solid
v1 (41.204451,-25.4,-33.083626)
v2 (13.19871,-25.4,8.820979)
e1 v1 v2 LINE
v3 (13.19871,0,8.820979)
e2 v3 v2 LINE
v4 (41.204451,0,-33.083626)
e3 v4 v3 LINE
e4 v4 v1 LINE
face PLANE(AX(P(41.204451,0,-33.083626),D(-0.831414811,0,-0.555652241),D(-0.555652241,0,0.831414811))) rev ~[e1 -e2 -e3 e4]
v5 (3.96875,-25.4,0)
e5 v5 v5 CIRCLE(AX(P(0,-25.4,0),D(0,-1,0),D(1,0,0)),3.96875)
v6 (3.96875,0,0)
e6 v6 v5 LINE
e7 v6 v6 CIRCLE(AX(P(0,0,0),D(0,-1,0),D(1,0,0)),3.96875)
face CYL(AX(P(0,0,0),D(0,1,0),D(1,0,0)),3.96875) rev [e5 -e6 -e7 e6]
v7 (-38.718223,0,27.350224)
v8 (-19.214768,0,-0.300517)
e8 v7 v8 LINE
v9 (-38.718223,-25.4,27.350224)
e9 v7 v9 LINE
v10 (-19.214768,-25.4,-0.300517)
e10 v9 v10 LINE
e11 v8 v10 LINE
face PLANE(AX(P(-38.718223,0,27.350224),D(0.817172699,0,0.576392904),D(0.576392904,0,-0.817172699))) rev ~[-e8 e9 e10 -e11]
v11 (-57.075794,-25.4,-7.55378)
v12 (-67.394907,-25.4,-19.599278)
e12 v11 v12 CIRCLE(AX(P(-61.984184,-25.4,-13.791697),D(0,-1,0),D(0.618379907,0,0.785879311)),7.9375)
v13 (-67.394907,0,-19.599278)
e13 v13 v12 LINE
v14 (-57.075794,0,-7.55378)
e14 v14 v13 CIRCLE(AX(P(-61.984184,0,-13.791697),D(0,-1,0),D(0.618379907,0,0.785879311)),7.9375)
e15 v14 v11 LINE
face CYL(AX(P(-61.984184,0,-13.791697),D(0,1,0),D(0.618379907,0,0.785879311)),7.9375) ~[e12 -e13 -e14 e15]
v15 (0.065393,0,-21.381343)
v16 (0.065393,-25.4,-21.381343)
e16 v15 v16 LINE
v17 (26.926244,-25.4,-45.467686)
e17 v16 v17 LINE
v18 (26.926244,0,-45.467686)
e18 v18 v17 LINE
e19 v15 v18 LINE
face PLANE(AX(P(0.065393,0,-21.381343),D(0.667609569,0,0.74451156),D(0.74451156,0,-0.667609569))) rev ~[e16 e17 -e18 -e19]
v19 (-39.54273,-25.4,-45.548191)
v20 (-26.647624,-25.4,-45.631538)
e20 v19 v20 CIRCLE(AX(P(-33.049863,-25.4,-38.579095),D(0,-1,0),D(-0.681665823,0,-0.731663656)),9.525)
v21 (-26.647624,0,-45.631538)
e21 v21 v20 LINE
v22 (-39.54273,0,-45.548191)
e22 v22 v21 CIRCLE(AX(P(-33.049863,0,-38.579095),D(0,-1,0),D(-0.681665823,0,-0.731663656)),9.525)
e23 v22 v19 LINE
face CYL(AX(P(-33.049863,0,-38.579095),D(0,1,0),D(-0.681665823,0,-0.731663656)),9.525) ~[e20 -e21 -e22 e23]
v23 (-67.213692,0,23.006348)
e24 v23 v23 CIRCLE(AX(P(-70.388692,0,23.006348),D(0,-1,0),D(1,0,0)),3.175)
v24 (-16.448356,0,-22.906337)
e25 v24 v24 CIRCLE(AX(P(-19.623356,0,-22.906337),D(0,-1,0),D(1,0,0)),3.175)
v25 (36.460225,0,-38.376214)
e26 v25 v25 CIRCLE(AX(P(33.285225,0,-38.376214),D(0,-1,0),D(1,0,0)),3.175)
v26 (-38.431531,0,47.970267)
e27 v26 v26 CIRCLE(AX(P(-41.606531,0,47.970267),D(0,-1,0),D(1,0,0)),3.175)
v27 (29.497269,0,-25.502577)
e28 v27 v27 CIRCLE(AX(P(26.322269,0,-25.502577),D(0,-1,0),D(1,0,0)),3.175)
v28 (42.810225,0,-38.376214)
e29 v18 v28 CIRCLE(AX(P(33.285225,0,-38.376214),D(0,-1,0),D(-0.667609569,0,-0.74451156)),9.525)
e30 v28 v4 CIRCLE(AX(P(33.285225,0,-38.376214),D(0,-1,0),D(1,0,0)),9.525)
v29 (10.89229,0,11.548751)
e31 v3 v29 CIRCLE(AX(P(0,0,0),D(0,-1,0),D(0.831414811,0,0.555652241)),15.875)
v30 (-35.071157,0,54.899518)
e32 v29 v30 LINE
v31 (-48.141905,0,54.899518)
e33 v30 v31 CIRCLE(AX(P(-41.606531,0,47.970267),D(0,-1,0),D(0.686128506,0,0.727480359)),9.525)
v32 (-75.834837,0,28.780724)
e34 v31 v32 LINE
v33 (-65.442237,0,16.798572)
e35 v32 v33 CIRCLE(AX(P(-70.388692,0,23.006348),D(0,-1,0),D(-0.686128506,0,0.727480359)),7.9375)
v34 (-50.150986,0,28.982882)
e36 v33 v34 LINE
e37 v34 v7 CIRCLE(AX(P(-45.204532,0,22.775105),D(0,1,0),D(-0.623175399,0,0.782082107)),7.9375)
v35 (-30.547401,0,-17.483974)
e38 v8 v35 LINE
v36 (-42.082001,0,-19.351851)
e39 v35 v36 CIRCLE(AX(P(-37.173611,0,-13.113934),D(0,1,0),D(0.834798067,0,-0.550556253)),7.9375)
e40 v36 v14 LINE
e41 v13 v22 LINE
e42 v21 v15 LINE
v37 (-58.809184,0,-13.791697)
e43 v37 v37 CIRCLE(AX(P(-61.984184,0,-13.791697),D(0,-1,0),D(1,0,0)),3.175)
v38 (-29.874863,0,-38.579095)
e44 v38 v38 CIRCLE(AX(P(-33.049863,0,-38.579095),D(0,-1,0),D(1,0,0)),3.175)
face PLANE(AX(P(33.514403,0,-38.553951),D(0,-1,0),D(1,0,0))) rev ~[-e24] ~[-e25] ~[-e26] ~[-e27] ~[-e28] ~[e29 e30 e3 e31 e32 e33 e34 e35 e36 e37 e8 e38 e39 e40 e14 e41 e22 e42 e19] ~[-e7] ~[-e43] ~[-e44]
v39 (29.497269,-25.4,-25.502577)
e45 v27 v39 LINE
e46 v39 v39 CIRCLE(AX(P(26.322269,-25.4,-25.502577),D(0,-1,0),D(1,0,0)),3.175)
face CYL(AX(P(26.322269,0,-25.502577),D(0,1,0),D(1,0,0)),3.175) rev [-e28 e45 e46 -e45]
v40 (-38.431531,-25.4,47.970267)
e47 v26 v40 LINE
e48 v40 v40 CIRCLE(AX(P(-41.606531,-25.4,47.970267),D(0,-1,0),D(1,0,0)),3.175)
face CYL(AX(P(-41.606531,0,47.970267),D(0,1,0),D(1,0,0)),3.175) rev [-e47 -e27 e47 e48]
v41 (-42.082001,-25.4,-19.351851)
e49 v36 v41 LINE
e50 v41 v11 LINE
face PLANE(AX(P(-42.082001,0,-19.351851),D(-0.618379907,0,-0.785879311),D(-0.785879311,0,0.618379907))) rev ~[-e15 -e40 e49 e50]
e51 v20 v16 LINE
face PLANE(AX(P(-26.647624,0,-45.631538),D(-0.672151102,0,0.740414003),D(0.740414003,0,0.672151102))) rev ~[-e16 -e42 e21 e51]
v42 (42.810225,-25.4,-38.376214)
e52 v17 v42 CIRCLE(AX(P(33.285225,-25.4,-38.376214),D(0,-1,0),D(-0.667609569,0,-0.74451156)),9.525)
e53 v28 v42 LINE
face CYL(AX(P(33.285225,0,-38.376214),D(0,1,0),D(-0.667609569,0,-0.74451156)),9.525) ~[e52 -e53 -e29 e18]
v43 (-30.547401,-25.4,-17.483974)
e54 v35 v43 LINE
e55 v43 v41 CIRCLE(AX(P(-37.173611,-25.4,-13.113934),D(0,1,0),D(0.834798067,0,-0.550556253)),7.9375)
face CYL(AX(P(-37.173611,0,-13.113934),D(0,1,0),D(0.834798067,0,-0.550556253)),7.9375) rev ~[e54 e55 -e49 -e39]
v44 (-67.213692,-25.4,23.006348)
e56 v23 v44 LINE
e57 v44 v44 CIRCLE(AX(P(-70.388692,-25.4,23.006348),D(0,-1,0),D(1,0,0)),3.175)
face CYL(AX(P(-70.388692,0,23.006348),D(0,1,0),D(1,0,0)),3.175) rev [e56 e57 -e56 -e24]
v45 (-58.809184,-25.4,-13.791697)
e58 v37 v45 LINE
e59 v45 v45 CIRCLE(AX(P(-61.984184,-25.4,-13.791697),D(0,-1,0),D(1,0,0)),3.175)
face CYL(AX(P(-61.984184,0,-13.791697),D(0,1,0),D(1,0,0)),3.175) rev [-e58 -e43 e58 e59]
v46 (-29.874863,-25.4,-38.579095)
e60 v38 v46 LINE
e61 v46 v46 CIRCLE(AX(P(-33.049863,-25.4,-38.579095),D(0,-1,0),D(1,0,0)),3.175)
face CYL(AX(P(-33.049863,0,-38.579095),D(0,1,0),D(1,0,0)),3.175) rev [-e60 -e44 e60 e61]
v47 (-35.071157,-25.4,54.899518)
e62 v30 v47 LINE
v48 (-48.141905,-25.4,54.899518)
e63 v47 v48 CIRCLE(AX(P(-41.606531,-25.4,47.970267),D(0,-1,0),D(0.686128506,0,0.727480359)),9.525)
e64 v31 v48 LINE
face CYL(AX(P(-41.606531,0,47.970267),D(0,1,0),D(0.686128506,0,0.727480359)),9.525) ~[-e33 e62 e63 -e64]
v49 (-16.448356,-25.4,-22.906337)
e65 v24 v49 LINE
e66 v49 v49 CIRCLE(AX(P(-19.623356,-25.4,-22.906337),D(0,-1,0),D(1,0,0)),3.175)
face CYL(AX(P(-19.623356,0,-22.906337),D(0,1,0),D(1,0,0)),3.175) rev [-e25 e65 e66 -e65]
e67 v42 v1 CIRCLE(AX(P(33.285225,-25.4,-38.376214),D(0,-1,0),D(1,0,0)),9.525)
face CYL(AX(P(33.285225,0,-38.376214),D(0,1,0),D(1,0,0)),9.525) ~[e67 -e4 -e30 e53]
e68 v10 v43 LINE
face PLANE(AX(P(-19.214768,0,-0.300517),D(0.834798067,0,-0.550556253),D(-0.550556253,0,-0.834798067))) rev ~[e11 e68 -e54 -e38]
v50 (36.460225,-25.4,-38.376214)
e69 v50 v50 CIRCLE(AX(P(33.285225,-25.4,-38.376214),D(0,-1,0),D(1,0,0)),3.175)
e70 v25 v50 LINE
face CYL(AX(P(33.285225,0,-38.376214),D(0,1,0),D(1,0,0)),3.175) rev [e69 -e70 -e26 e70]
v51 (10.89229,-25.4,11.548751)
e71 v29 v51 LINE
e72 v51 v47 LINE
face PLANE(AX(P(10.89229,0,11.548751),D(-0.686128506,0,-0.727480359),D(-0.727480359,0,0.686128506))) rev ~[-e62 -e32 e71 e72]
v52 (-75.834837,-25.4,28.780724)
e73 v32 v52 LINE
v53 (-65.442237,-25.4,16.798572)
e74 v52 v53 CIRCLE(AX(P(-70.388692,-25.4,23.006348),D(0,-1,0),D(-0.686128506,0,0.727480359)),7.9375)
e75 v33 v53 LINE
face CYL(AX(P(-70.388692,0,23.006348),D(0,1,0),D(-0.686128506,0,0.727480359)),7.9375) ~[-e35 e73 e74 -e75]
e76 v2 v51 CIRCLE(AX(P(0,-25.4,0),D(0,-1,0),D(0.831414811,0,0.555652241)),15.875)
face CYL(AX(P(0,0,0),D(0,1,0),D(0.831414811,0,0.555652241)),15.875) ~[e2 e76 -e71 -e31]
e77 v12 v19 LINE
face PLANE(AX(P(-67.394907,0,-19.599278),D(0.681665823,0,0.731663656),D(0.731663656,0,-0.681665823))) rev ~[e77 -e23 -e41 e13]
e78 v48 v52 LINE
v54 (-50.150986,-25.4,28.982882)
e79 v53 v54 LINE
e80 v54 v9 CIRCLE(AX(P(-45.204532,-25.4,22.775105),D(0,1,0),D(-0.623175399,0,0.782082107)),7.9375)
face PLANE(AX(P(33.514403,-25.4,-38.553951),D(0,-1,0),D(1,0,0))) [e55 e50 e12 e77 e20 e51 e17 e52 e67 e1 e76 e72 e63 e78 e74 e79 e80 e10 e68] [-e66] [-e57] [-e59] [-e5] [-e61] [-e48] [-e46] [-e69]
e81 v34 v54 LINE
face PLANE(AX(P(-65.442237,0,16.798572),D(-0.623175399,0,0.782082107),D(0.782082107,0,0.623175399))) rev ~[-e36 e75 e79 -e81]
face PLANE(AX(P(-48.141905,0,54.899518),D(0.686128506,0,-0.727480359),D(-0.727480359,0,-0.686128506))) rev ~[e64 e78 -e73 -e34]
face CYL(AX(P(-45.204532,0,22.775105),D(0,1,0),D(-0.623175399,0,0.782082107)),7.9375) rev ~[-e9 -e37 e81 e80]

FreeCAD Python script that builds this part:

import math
import FreeCAD as App
import Part
import Sketcher

V = App.Vector
Q = App.Units.Quantity

doc = App.newDocument("Part")
body = doc.addObject("PartDesign::Body", "Body")

# Sketch on XZ plane
sketch1 = doc.addObject("Sketcher::SketchObject", "Sketch")
body.addObject(sketch1)
sketch1.AttachmentSupport = (doc.XZ_Plane, [""])
sketch1.MapMode = "FlatFace"
sketch1.addGeometry([
    Part.ArcOfCircle(Part.Circle(V(-45.204532, 22.775105, 0), V(0, 0, 1), 7.9375), math.radians(35.197237), math.radians(128.548392)),  # 0
    Part.LineSegment(V(-38.718223, 27.350224, 0), V(-19.214768, -0.300517, 0)),  # 1
    Part.LineSegment(V(-19.214768, -0.300517, 0), V(-30.547401, -17.483974, 0)),  # 2
    Part.ArcOfCircle(Part.Circle(V(-37.173611, -13.113934, 0), V(0, 0, 1), 7.9375), math.radians(-128.197923), math.radians(-33.405183)),  # 3
    Part.LineSegment(V(-42.082001, -19.351851, 0), V(-57.075794, -7.55378, 0)),  # 4
    Part.ArcOfCircle(Part.Circle(V(-61.984184, -13.791697, 0), V(0, 0, 1), 7.9375), math.radians(51.802077), math.radians(227.026046)),  # 5
    Part.LineSegment(V(-67.394907, -19.599278, 0), V(-39.54273, -45.548191, 0)),  # 6
    Part.ArcOfCircle(Part.Circle(V(-33.049863, -38.579095, 0), V(0, 0, 1), 9.525), math.radians(-132.973954), math.radians(-47.766694)),  # 7
    Part.LineSegment(V(-26.647624, -45.631538, 0), V(0.065393, -21.381343, 0)),  # 8
    Part.LineSegment(V(0.065393, -21.381343, 0), V(26.926244, -45.467686, 0)),  # 9
    Part.ArcOfCircle(Part.Circle(V(33.285225, -38.376214, 0), V(0, 0, 1), 9.525), math.radians(-131.882837), math.radians(0)),  # 10
    Part.ArcOfCircle(Part.Circle(V(33.285225, -38.376214, 0), V(0, 0, 1), 9.525), math.radians(0), math.radians(33.755651)),  # 11
    Part.LineSegment(V(41.204451, -33.083626, 0), V(13.19871, 8.820979, 0)),  # 12
    Part.ArcOfCircle(Part.Circle(V(0, 0, 0), V(0, 0, 1), 15.875), math.radians(33.755651), math.radians(46.675578)),  # 13
    Part.LineSegment(V(10.89229, 11.548751, 0), V(-35.071157, 54.899518, 0)),  # 14
    Part.ArcOfCircle(Part.Circle(V(-41.606531, 47.970267, 0), V(0, 0, 1), 9.525), math.radians(46.675578), math.radians(133.324422)),  # 15
    Part.LineSegment(V(-48.141905, 54.899518, 0), V(-75.834837, 28.780724, 0)),  # 16
    Part.ArcOfCircle(Part.Circle(V(-70.388692, 23.006348, 0), V(0, 0, 1), 7.9375), math.radians(133.324422), math.radians(308.548392)),  # 17
    Part.LineSegment(V(-65.442237, 16.798572, 0), V(-50.150986, 28.982882, 0)),  # 18
    Part.Circle(V(-33.049863, -38.579095, 0), V(0, 0, 1), 3.175),  # 19
    Part.Circle(V(-19.623356, -22.906337, 0), V(0, 0, 1), 3.175),  # 20
    Part.Circle(V(-61.984184, -13.791697, 0), V(0, 0, 1), 3.175),  # 21
    Part.Circle(V(33.285225, -38.376214, 0), V(0, 0, 1), 3.175),  # 22
    Part.Circle(V(26.322269, -25.502577, 0), V(0, 0, 1), 3.175),  # 23
    Part.Circle(V(0, 0, 0), V(0, 0, 1), 3.96875),  # 24
    Part.Circle(V(-70.388692, 23.006348, 0), V(0, 0, 1), 3.175),  # 25
    Part.Circle(V(-41.606531, 47.970267, 0), V(0, 0, 1), 3.175),  # 26
], False)
sketch1.addConstraint([
    Sketcher.Constraint("Coincident", 0, 1, 1, 1),
    Sketcher.Constraint("Coincident", 1, 2, 2, 1),
    Sketcher.Constraint("Coincident", 2, 2, 3, 2),
    Sketcher.Constraint("Coincident", 3, 1, 4, 1),
    Sketcher.Constraint("Coincident", 4, 2, 5, 1),
    Sketcher.Constraint("Coincident", 5, 2, 6, 1),
    Sketcher.Constraint("Coincident", 6, 2, 7, 1),
    Sketcher.Constraint("Coincident", 7, 2, 8, 1),
    Sketcher.Constraint("Coincident", 8, 2, 9, 1),
    Sketcher.Constraint("Coincident", 9, 2, 10, 1),
    Sketcher.Constraint("Coincident", 10, 2, 11, 1),
    Sketcher.Constraint("Coincident", 11, 2, 12, 1),
    Sketcher.Constraint("Coincident", 12, 2, 13, 1),
    Sketcher.Constraint("Coincident", 13, 2, 14, 1),
    Sketcher.Constraint("Coincident", 14, 2, 15, 1),
    Sketcher.Constraint("Coincident", 15, 2, 16, 1),
    Sketcher.Constraint("Coincident", 16, 2, 17, 1),
    Sketcher.Constraint("Coincident", 17, 2, 18, 1),
    Sketcher.Constraint("Coincident", 18, 2, 0, 2),
    Sketcher.Constraint("Coincident", 13, 3, -1, 1),
    Sketcher.Constraint("Coincident", 24, 3, -1, 1),
    Sketcher.Constraint("Coincident", 11, 3, 10, 3),
    Sketcher.Constraint("Coincident", 19, 3, 7, 3),
    Sketcher.Constraint("Coincident", 21, 3, 5, 3),
    Sketcher.Constraint("Coincident", 22, 3, 10, 3),
    Sketcher.Constraint("Coincident", 25, 3, 17, 3),
    Sketcher.Constraint("Coincident", 26, 3, 15, 3),
    Sketcher.Constraint("Diameter", 19, Q("0.25 in")),
    Sketcher.Constraint("Diameter", 20, Q("0.25 in")),
    Sketcher.Constraint("Diameter", 21, Q("0.25 in")),
    Sketcher.Constraint("Diameter", 22, Q("0.25 in")),
    Sketcher.Constraint("Diameter", 23, Q("0.25 in")),
    Sketcher.Constraint("Diameter", 25, Q("0.25 in")),
    Sketcher.Constraint("Diameter", 26, Q("0.25 in")),
    Sketcher.Constraint("Diameter", 24, Q("0.3125 in")),
    Sketcher.Constraint("Radius", 0, Q("0.3125 in")),
    Sketcher.Constraint("Radius", 3, Q("0.3125 in")),
    Sketcher.Constraint("Radius", 5, Q("0.3125 in")),
    Sketcher.Constraint("Radius", 7, Q("0.375 in")),
    Sketcher.Constraint("Radius", 10, Q("0.375 in")),
    Sketcher.Constraint("Radius", 13, Q("0.625 in")),
    Sketcher.Constraint("Radius", 15, Q("0.375 in")),
    Sketcher.Constraint("Radius", 17, Q("0.3125 in")),
    Sketcher.Constraint("Distance", 4, Q("19.079001 mm")),
    Sketcher.Constraint("DistanceX", 2, 2, -1, 1, Q("30.547401 mm")),
    Sketcher.Constraint("DistanceX", 3, 1, -1, 1, Q("42.082001 mm")),
    Sketcher.Constraint("DistanceY", 7, 3, 0, 3, Q("61.3542 mm")),
    Sketcher.Constraint("DistanceX", 0, 3, 15, 3, Q("3.598 mm")),
    Sketcher.Constraint("DistanceY", 3, 3, 15, 3, Q("61.084201 mm")),
    Sketcher.Constraint("DistanceY", 7, 2, 20, 3, Q("22.725201 mm")),
    Sketcher.Constraint("DistanceY", 0, 1, 16, 2, Q("1.4305 mm")),
    Sketcher.Constraint("DistanceX", 16, 2, 17, 2, Q("10.3926 mm")),
    Sketcher.Constraint("Distance", 2, Q("20.583969 mm")),
    Sketcher.Constraint("DistanceX", 0, 3, -1, 1, Q("45.204532 mm")),
    Sketcher.Constraint("DistanceX", 3, 3, -1, 1, Q("37.173611 mm")),
    Sketcher.Constraint("DistanceX", 17, 3, -1, 1, Q("70.388692 mm")),
    Sketcher.Constraint("DistanceY", -1, 1, 17, 3, Q("23.006348 mm")),
    Sketcher.Constraint("DistanceX", -1, 1, 23, 3, Q("26.322269 mm")),
    Sketcher.Constraint("DistanceX", 1, 2, -1, 1, Q("19.214768 mm")),
    Sketcher.Constraint("DistanceY", 3, 1, -1, 1, Q("19.351851 mm")),
    Sketcher.Constraint("DistanceY", 4, 2, -1, 1, Q("7.55378 mm")),
    Sketcher.Constraint("DistanceX", 6, 2, -1, 1, Q("39.54273 mm")),
    Sketcher.Constraint("DistanceY", 6, 2, -1, 1, Q("45.548191 mm")),
    Sketcher.Constraint("DistanceY", 7, 2, -1, 1, Q("45.631538 mm")),
    Sketcher.Constraint("DistanceX", -1, 1, 11, 2, Q("41.204451 mm")),
    Sketcher.Constraint("DistanceX", -1, 1, 12, 2, Q("13.19871 mm")),
    Sketcher.Constraint("DistanceX", -1, 1, 13, 2, Q("10.89229 mm")),
    Sketcher.Constraint("DistanceY", -1, 1, 17, 2, Q("16.798572 mm")),
    Sketcher.Constraint("DistanceY", 3, 3, 0, 3, Q("35.88904 mm")),
    Sketcher.Constraint("DistanceX", 5, 3, 7, 3, Q("28.934321 mm")),
    Sketcher.Constraint("DistanceX", 7, 3, 10, 3, Q("66.335088 mm")),
    Sketcher.Constraint("DistanceY", 7, 3, 10, 3, Q("0.202881 mm")),
    Sketcher.Constraint("DistanceX", 20, 3, 22, 3, Q("52.908581 mm")),
    Sketcher.Constraint("DistanceY", 23, 3, 20, 3, Q("2.59624 mm")),
    Sketcher.Constraint("DistanceY", 5, 2, 5, 3, Q("5.80758 mm")),
    Sketcher.Constraint("DistanceX", 20, 3, 8, 2, Q("19.688749 mm")),
    Sketcher.Constraint("DistanceX", 9, 2, 10, 3, Q("6.358981 mm")),
    Sketcher.Constraint("DistanceY", 15, 3, 14, 2, Q("6.92925 mm")),
    Sketcher.Constraint("DistanceY", 15, 3, 15, 2, Q("6.92925 mm")),
    Sketcher.Constraint("DistanceY", 0, 1, 18, 2, Q("1.632658 mm")),
    Sketcher.Constraint("Distance", 8, Q("36.078487 mm")),
    Sketcher.Constraint("DistanceY", 10, 2, -1, 1, Q("38.376214 mm")),
])
pad1 = doc.addObject("PartDesign::Pad", "Pad")
body.addObject(pad1)
pad1.Profile = sketch1
pad1.Length = Q("1 in")

doc.recompute()
